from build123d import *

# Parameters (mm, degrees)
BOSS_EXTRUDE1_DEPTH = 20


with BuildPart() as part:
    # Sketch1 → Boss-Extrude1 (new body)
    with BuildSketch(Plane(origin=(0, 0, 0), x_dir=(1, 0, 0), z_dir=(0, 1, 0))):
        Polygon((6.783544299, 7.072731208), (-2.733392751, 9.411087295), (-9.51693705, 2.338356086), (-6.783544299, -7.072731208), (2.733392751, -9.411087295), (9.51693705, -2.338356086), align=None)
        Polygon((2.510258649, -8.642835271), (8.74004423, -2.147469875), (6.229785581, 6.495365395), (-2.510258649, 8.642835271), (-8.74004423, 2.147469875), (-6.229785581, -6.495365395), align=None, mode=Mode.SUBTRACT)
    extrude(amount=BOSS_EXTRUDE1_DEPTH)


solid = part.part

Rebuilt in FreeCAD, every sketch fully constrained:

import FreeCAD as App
import Part
import Sketcher


def add_polygon(sketch, points):
    """Adds a closed chain of lines whose ends are joined by coincident constraints."""
    first, n = sketch.GeometryCount, len(points)
    for a, b in zip(points, points[1:] + points[:1]):
        sketch.addGeometry(Part.LineSegment(App.Vector(*a, 0), App.Vector(*b, 0)), False)
    for i in range(n):
        sketch.addConstraint(Sketcher.Constraint("Coincident", first + i, 2, first + (i + 1) % n, 1))

doc = App.newDocument("Part")
body = doc.addObject("PartDesign::Body", "Body")

# Sketch on XZ plane
sketch1 = doc.addObject("Sketcher::SketchObject", "Sketch")
body.addObject(sketch1)
sketch1.AttachmentSupport = (doc.XZ_Plane, [""])
sketch1.MapMode = "FlatFace"
add_polygon(sketch1, [(6.783544, -7.072731), (-2.733393, -9.411087), (-9.516937, -2.338356), (-6.783544, 7.072731), (2.733393, 9.411087), (9.516937, 2.338356)])  # lines 0-5
add_polygon(sketch1, [(8.740044, 2.14747), (2.510259, 8.642835), (-6.229786, 6.495365), (-8.740044, -2.14747), (-2.510259, -8.642835), (6.229786, -6.495365)])  # lines 6-11
sketch1.addConstraint([
    Sketcher.Constraint("Symmetric", 0, 2, 3, 2, -1, 1),
    Sketcher.Constraint("Symmetric", 1, 2, 4, 2, -1, 1),
    Sketcher.Constraint("Symmetric", 2, 2, 5, 2, -1, 1),
    Sketcher.Constraint("Symmetric", 6, 2, 9, 2, -1, 1),
    Sketcher.Constraint("Symmetric", 7, 2, 10, 2, -1, 1),
    Sketcher.Constraint("Symmetric", 8, 2, 11, 2, -1, 1),
    Sketcher.Constraint("Parallel", 4, 6),
    Sketcher.Constraint("Parallel", 3, 7),
    Sketcher.Constraint("Parallel", 5, 8),
    Sketcher.Constraint("Equal", 0, 1),
    Sketcher.Constraint("Equal", 1, 2),
    Sketcher.Constraint("Equal", 6, 7),
    Sketcher.Constraint("Equal", 7, 8),
    Sketcher.Constraint("Distance", 6, 9.0),
    Sketcher.Constraint("Distance", 0, 9.8),
    Sketcher.Constraint("DistanceX", 8, 2, 2, 2, 1.9565),
    Sketcher.Constraint("DistanceY", 8, 2, 2, 2, 9.220201),
    Sketcher.Constraint("DistanceY", 9, 2, 7, 2, 15.138201),
])
pad1 = doc.addObject("PartDesign::Pad", "Pad")
body.addObject(pad1)
pad1.Profile = sketch1
pad1.Length = 20
pad1.Reversed = True

doc.recompute()
